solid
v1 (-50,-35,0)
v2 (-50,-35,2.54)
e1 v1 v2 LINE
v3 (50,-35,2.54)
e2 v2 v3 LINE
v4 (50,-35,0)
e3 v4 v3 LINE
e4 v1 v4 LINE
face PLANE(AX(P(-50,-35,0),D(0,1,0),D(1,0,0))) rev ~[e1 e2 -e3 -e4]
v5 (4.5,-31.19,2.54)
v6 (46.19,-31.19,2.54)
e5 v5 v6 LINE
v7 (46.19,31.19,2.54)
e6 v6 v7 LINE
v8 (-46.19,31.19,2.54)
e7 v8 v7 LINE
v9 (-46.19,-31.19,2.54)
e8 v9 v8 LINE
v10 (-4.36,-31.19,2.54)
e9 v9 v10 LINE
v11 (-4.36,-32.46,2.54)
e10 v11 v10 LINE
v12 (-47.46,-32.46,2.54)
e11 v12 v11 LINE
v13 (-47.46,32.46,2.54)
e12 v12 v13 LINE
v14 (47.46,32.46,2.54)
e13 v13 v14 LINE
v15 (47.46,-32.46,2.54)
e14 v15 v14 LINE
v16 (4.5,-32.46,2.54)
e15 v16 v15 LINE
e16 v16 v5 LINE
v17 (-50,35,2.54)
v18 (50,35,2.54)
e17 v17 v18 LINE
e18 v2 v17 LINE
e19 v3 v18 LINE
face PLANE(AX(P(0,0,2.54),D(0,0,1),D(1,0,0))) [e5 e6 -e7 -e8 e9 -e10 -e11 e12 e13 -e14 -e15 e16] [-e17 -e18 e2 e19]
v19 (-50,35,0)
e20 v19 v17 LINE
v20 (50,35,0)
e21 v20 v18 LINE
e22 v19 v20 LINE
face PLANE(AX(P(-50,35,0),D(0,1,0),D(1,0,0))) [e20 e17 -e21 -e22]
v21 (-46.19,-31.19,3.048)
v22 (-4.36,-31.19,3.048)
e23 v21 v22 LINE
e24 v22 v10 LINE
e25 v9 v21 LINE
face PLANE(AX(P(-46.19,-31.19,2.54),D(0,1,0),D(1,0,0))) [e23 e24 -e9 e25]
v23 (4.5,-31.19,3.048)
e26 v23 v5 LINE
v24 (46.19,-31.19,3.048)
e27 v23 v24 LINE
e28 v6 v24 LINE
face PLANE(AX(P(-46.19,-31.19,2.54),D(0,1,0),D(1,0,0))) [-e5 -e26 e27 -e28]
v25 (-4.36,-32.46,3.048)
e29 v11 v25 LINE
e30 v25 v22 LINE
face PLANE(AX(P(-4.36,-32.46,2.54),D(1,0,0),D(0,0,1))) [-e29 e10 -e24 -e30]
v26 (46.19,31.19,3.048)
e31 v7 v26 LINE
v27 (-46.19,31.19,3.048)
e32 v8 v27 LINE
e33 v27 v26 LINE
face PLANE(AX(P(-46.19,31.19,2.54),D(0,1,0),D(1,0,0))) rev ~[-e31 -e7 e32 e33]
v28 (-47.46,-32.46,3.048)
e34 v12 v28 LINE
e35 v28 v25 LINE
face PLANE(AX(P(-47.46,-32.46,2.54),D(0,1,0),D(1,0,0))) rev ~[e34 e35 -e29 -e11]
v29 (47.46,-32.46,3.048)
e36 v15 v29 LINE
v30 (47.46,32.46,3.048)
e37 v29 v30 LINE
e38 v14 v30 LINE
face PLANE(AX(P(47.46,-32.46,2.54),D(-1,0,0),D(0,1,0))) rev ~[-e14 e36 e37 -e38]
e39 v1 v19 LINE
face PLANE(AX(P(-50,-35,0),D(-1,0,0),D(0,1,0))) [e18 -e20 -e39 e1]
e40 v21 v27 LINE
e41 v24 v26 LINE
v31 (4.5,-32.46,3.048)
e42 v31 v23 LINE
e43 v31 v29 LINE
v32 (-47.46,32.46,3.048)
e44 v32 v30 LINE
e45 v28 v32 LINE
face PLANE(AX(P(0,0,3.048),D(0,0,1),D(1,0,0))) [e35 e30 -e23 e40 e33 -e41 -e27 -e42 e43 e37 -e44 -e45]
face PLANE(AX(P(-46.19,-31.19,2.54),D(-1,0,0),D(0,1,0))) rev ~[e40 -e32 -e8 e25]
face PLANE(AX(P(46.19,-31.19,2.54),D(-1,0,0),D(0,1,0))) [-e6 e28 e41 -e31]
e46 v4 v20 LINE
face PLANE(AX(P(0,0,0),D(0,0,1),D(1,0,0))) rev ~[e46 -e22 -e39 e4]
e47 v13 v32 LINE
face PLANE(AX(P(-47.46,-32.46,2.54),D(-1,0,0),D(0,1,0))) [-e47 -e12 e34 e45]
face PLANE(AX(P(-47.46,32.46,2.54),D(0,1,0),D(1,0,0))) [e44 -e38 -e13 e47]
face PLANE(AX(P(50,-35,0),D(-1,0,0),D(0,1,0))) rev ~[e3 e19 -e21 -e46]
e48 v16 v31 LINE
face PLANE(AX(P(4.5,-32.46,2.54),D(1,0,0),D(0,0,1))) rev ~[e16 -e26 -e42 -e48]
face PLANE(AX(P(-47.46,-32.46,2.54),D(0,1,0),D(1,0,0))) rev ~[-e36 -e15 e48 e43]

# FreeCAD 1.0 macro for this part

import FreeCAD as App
import Part
import Sketcher
Q = App.Units.Quantity


def add_polygon(sketch, points):
    """Adds a closed chain of lines whose ends are joined by coincident constraints."""
    first, n = sketch.GeometryCount, len(points)
    for a, b in zip(points, points[1:] + points[:1]):
        sketch.addGeometry(Part.LineSegment(App.Vector(*a, 0), App.Vector(*b, 0)), False)
    for i in range(n):
        sketch.addConstraint(Sketcher.Constraint("Coincident", first + i, 2, first + (i + 1) % n, 1))

doc = App.newDocument("Part")
params = doc.addObject("Spreadsheet::Sheet", "Params")
for row, (alias, value) in enumerate([
    ("pad1_length", "0.1 in"),
    ("pad2_length", "0.02 in"),
    ("sketch3_height", "0.02 in"),
    ("pocket1_length", "1 in"),
], start=1):
    params.set(f"A{row}", alias)
    params.set(f"B{row}", "=" + value)
    params.setAlias(f"B{row}", alias)

body = doc.addObject("PartDesign::Body", "Body")

sketch1 = doc.addObject("Sketcher::SketchObject", "Sketch")
body.addObject(sketch1)
sketch1.AttachmentSupport = (doc.XY_Plane, [""])
sketch1.MapMode = "FlatFace"
add_polygon(sketch1, [(-50, 35), (-50, -35), (50, -35), (50, 35)])
sketch1.addConstraint(Sketcher.Constraint("Vertical", 0))
sketch1.addConstraint(Sketcher.Constraint("Horizontal", 1))
sketch1.addConstraint(Sketcher.Constraint("Vertical", 2))
sketch1.addConstraint(Sketcher.Constraint("Horizontal", 3))
sketch1.addConstraint(Sketcher.Constraint("Symmetric", 0, 2, 2, 2, -1, 1))
sketch1.addConstraint(Sketcher.Constraint("DistanceX", 1, 1, 1, 2, 100.0))
sketch1.addConstraint(Sketcher.Constraint("DistanceY", 0, 2, 0, 1, 70.0))
pad1 = doc.addObject("PartDesign::Pad", "Pad")
body.addObject(pad1)
pad1.Profile = sketch1
pad1.setExpression("Length", "Params.pad1_length")

sketch2 = doc.addObject("Sketcher::SketchObject", "Sketch001")
body.addObject(sketch2)
sketch2.AttachmentSupport = (doc.XY_Plane, [""])
sketch2.MapMode = "FlatFace"
sketch2.AttachmentOffset = App.Placement(App.Vector(0, 0, 0.1 * 25.4), App.Rotation())
add_polygon(sketch2, [(-47.46, 32.46), (-47.46, -32.46), (47.46, -32.46), (47.46, 32.46)])
add_polygon(sketch2, [(46.19, -31.19), (-46.19, -31.19), (-46.19, 31.19), (46.19, 31.19)])
sketch2.addConstraint(Sketcher.Constraint("Vertical", 0))
sketch2.addConstraint(Sketcher.Constraint("Horizontal", 1))
sketch2.addConstraint(Sketcher.Constraint("Vertical", 2))
sketch2.addConstraint(Sketcher.Constraint("Horizontal", 3))
sketch2.addConstraint(Sketcher.Constraint("Horizontal", 4))
sketch2.addConstraint(Sketcher.Constraint("Vertical", 5))
sketch2.addConstraint(Sketcher.Constraint("Horizontal", 6))
sketch2.addConstraint(Sketcher.Constraint("Vertical", 7))
sketch2.addConstraint(Sketcher.Constraint("Symmetric", 0, 2, 2, 2, -1, 1))
sketch2.addConstraint(Sketcher.Constraint("Symmetric", 4, 2, 6, 2, -1, 1))
sketch2.addConstraint(Sketcher.Constraint("DistanceX", 0, 2, 4, 2, Q("0.05 in")))
sketch2.addConstraint(Sketcher.Constraint("DistanceY", 0, 2, 4, 2, Q("0.05 in")))
sketch2.addConstraint(Sketcher.Constraint("DistanceX", 1, 1, 1, 2, 94.92))
sketch2.addConstraint(Sketcher.Constraint("DistanceY", 0, 2, 0, 1, 64.92))
pad2 = doc.addObject("PartDesign::Pad", "Pad001")
body.addObject(pad2)
pad2.Profile = sketch2
pad2.setExpression("Length", "Params.pad2_length")

sketch3 = doc.addObject("Sketcher::SketchObject", "Sketch002")
body.addObject(sketch3)
sketch3.AttachmentSupport = (doc.XZ_Plane, [""])
sketch3.MapMode = "FlatFace"
sketch3.AttachmentOffset = App.Placement(App.Vector(0, 0, 32.46), App.Rotation())
add_polygon(sketch3, [(-4.36, 3.048), (-4.36, 2.54), (4.5, 2.54), (4.5, 3.048)])
sketch3.addConstraint(Sketcher.Constraint("Vertical", 0))
sketch3.addConstraint(Sketcher.Constraint("Horizontal", 1))
sketch3.addConstraint(Sketcher.Constraint("Vertical", 2))
sketch3.addConstraint(Sketcher.Constraint("Horizontal", 3))
sketch3.addConstraint(Sketcher.Constraint("DistanceY", 0, 2, 0, 1, Q("0.02 in")))
sketch3.addConstraint(Sketcher.Constraint("DistanceY", -1, 1, 0, 2, Q("0.1 in")))
sketch3.addConstraint(Sketcher.Constraint("DistanceX", 1, 1, 1, 2, 8.86))
sketch3.addConstraint(Sketcher.Constraint("DistanceX", 0, 2, -1, 1, 4.36))
sketch3.setExpression("Constraints[8]", "Params.sketch3_height")
pocket1 = doc.addObject("PartDesign::Pocket", "Pocket")
body.addObject(pocket1)
pocket1.Profile = sketch3
pocket1.setExpression("Length", "Params.pocket1_length")

doc.recompute()
